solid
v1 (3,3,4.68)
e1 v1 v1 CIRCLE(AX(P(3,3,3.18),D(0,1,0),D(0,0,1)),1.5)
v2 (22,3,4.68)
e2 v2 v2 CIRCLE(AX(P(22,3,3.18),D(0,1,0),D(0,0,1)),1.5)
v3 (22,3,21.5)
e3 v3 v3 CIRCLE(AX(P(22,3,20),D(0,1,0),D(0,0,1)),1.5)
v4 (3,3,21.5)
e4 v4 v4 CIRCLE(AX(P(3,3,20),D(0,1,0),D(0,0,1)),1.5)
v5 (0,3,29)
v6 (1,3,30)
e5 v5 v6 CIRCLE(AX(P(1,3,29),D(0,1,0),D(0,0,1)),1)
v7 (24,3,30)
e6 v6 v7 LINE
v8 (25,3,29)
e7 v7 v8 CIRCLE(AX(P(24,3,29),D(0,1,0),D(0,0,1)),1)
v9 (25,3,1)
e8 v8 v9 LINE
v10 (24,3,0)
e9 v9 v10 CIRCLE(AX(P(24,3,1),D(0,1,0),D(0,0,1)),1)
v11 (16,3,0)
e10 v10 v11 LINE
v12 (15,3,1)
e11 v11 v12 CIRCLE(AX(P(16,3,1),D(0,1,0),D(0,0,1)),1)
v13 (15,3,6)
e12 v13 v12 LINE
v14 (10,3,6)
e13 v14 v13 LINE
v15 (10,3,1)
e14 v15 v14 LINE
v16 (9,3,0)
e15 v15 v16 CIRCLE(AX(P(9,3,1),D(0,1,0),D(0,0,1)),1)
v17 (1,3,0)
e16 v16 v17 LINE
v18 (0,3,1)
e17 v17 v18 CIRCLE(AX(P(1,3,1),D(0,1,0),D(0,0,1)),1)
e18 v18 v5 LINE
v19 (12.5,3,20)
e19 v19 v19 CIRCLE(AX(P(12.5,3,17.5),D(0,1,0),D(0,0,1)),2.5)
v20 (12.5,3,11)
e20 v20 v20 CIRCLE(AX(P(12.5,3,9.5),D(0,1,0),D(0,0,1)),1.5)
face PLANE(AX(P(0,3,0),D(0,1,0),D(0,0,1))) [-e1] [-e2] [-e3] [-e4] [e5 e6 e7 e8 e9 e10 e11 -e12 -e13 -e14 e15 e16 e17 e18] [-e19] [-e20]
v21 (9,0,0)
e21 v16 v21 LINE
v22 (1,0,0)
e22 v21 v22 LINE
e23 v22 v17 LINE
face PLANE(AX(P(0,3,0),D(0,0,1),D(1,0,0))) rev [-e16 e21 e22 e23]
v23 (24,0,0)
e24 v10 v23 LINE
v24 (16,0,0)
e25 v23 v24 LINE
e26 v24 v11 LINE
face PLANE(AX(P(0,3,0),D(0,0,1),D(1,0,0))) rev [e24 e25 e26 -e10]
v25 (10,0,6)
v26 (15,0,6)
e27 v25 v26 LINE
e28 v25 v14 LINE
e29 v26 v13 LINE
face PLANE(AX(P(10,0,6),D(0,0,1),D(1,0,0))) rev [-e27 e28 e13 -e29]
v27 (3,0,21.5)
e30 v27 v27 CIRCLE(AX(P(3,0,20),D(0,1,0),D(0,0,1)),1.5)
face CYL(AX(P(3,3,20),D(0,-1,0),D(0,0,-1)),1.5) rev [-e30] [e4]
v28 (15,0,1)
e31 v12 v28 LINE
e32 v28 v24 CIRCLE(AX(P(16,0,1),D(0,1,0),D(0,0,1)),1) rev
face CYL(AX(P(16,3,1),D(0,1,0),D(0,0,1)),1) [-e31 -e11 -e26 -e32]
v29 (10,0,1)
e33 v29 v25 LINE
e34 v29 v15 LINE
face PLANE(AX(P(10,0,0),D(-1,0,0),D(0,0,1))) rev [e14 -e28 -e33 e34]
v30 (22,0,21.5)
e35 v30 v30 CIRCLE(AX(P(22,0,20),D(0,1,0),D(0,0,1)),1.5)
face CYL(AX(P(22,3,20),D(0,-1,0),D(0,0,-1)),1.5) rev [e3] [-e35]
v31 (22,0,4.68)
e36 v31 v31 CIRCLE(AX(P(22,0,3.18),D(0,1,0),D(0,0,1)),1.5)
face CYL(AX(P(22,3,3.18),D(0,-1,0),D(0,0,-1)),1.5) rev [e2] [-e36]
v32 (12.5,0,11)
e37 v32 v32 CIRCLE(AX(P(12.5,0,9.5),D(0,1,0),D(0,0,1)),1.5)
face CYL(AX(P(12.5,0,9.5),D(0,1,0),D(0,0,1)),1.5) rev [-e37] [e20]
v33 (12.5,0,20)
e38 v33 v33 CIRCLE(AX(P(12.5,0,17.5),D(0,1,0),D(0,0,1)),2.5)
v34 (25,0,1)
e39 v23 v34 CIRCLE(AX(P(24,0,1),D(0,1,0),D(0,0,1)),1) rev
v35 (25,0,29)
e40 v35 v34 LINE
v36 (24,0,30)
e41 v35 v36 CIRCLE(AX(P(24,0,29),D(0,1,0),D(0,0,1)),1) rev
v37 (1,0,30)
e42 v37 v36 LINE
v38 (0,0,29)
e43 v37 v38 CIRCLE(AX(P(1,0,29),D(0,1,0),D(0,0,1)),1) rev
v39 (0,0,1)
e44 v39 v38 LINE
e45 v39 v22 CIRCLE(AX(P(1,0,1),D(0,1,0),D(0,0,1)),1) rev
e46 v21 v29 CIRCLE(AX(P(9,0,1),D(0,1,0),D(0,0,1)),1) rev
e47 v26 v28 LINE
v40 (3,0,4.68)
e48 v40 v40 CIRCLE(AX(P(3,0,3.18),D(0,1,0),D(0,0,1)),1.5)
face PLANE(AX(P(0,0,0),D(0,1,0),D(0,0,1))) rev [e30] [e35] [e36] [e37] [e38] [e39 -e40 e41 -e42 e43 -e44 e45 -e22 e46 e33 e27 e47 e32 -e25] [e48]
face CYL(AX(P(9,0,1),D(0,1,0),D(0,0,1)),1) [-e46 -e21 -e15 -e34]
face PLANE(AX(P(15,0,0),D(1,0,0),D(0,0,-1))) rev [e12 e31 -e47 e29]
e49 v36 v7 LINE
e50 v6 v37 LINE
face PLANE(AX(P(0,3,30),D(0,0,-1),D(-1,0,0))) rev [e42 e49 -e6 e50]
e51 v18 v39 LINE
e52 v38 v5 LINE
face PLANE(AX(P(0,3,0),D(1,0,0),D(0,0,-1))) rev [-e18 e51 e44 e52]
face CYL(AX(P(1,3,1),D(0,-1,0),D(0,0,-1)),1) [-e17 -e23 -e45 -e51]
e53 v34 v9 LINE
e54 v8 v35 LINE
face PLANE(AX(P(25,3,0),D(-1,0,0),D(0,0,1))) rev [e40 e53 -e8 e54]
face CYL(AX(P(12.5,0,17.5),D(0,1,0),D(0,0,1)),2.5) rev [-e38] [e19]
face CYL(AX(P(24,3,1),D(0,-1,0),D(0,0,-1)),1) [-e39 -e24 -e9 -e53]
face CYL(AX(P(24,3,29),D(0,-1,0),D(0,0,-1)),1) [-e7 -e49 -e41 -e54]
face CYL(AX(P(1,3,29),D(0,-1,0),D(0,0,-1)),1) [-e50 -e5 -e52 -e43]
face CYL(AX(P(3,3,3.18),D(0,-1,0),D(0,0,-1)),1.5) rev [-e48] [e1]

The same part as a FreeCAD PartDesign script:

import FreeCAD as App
import Part
import Sketcher
Q = App.Units.Quantity


def edges_at(feature, points):
    """Names of the edges that pass closest to the given points."""
    edges = feature.Shape.Edges
    near = lambda p: min(range(len(edges)), key=lambda i: edges[i].distToShape(Part.Vertex(*p))[0])
    return sorted({f"Edge{near(p) + 1}" for p in points})

doc = App.newDocument("Part")
body = doc.addObject("PartDesign::Body", "Body")

# Sketch on XZ plane
sketch1 = doc.addObject("Sketcher::SketchObject", "Sketch")
body.addObject(sketch1)
sketch1.AttachmentSupport = (doc.XZ_Plane, [""])
sketch1.MapMode = "FlatFace"
sketch1.addGeometry([
    Part.LineSegment(App.Vector(0, 0, 0), App.Vector(0, 30, 0)),  # 0
    Part.LineSegment(App.Vector(0, 30, 0), App.Vector(25, 30, 0)),  # 1
    Part.LineSegment(App.Vector(25, 30, 0), App.Vector(25, 0, 0)),  # 2
    Part.LineSegment(App.Vector(25, 0, 0), App.Vector(0, 0, 0)),  # 3
    Part.Circle(App.Vector(3, 20, 0), App.Vector(0, 0, 1), 1.5),  # 4
    Part.Circle(App.Vector(22, 20, 0), App.Vector(0, 0, 1), 1.5),  # 5
    Part.Circle(App.Vector(3, 3.2, 0), App.Vector(0, 0, 1), 1.5),  # 6
    Part.Circle(App.Vector(22, 3.2, 0), App.Vector(0, 0, 1), 1.5),  # 7
], False)
sketch1.addConstraint([
    Sketcher.Constraint("Coincident", 0, 2, 1, 1),
    Sketcher.Constraint("Coincident", 1, 2, 2, 1),
    Sketcher.Constraint("Coincident", 2, 2, 3, 1),
    Sketcher.Constraint("Coincident", 3, 2, 0, 1),
    Sketcher.Constraint("Vertical", 0),
    Sketcher.Constraint("Horizontal", 1),
    Sketcher.Constraint("Vertical", 2),
    Sketcher.Constraint("Horizontal", 3),
    Sketcher.Constraint("Coincident", 3, 2, -1, 1),
    Sketcher.Constraint("Equal", 4, 5),
    Sketcher.Constraint("Equal", 5, 6),
    Sketcher.Constraint("Equal", 6, 7),
    Sketcher.Constraint("Horizontal", 4, 3, 5, 3),
    Sketcher.Constraint("Horizontal", 6, 3, 7, 3),
    Sketcher.Constraint("Vertical", 4, 3, 6, 3),
    Sketcher.Constraint("Vertical", 5, 3, 7, 3),
    Sketcher.Constraint("Diameter", 4, Q("3 mm")),
    Sketcher.Constraint("DistanceX", 1, 1, 1, 2, Q("25 mm")),
    Sketcher.Constraint("DistanceY", 0, 1, 0, 2, Q("30 mm")),
    Sketcher.Constraint("DistanceX", -1, 1, 4, 3, Q("3 mm")),
    Sketcher.Constraint("DistanceY", -1, 1, 4, 3, Q("20 mm")),
    Sketcher.Constraint("DistanceX", -1, 1, 5, 3, Q("22 mm")),
    Sketcher.Constraint("DistanceY", -1, 1, 6, 3, Q("3.18 mm")),
])
pad1 = doc.addObject("PartDesign::Pad", "Pad")
body.addObject(pad1)
pad1.Profile = sketch1
pad1.Length = 3
pad1.Reversed = True

# Sketch on XZ plane
sketch2 = doc.addObject("Sketcher::SketchObject", "Sketch001")
body.addObject(sketch2)
sketch2.AttachmentSupport = (doc.XZ_Plane, [""])
sketch2.MapMode = "FlatFace"
sketch2.AttachmentOffset = App.Placement(App.Vector(0, 0, -3), App.Rotation())
sketch2.addGeometry([
    Part.Circle(App.Vector(12.5, 9.5, 0), App.Vector(0, 0, 1), 1.5),  # 0
    Part.Circle(App.Vector(12.5, 17.5, 0), App.Vector(0, 0, 1), 2.5),  # 1
    Part.LineSegment(App.Vector(10, 0, 0), App.Vector(10, 6, 0)),  # 2
    Part.LineSegment(App.Vector(10, 6, 0), App.Vector(15, 6, 0)),  # 3
    Part.LineSegment(App.Vector(15, 6, 0), App.Vector(15, 0, 0)),  # 4
    Part.LineSegment(App.Vector(15, 0, 0), App.Vector(10, 0, 0)),  # 5
], False)
sketch2.addConstraint([
    Sketcher.Constraint("Coincident", 2, 2, 3, 1),
    Sketcher.Constraint("Coincident", 3, 2, 4, 1),
    Sketcher.Constraint("Coincident", 4, 2, 5, 1),
    Sketcher.Constraint("Coincident", 5, 2, 2, 1),
    Sketcher.Constraint("Vertical", 2),
    Sketcher.Constraint("Horizontal", 3),
    Sketcher.Constraint("Vertical", 4),
    Sketcher.Constraint("Horizontal", 5),
    Sketcher.Constraint("PointOnObject", 4, 2, -1),
    Sketcher.Constraint("Vertical", 0, 3, 1, 3),
    Sketcher.Constraint("Diameter", 0, Q("3 mm")),
    Sketcher.Constraint("Diameter", 1, Q("5 mm")),
    Sketcher.Constraint("DistanceX", 3, 1, 3, 2, Q("5 mm")),
    Sketcher.Constraint("DistanceY", 2, 1, 2, 2, Q("6 mm")),
    Sketcher.Constraint("DistanceX", -1, 1, 2, 2, Q("10 mm")),
    Sketcher.Constraint("DistanceY", 0, 3, 1, 3, Q("8 mm")),
    Sketcher.Constraint("DistanceX", -1, 1, 0, 3, Q("12.5 mm")),
    Sketcher.Constraint("DistanceY", -1, 1, 0, 3, Q("9.5 mm")),
])
pocket1 = doc.addObject("PartDesign::Pocket", "Pocket")
body.addObject(pocket1)
pocket1.Profile = sketch2
pocket1.Type = "ThroughAll"
pocket1.Reversed = True
doc.recompute()

fillet = doc.addObject("PartDesign::Fillet", "Fillet")
body.addObject(fillet)
fillet.Base = (pocket1, edges_at(pocket1, [
    (10, 1.5, 0),
    (15, 1.5, 0),
    (0, 1.5, 0),
    (25, 1.5, 0),
    (25, 1.5, 30),
    (0, 1.5, 30),
]))
fillet.Radius = 1

doc.recompute()
